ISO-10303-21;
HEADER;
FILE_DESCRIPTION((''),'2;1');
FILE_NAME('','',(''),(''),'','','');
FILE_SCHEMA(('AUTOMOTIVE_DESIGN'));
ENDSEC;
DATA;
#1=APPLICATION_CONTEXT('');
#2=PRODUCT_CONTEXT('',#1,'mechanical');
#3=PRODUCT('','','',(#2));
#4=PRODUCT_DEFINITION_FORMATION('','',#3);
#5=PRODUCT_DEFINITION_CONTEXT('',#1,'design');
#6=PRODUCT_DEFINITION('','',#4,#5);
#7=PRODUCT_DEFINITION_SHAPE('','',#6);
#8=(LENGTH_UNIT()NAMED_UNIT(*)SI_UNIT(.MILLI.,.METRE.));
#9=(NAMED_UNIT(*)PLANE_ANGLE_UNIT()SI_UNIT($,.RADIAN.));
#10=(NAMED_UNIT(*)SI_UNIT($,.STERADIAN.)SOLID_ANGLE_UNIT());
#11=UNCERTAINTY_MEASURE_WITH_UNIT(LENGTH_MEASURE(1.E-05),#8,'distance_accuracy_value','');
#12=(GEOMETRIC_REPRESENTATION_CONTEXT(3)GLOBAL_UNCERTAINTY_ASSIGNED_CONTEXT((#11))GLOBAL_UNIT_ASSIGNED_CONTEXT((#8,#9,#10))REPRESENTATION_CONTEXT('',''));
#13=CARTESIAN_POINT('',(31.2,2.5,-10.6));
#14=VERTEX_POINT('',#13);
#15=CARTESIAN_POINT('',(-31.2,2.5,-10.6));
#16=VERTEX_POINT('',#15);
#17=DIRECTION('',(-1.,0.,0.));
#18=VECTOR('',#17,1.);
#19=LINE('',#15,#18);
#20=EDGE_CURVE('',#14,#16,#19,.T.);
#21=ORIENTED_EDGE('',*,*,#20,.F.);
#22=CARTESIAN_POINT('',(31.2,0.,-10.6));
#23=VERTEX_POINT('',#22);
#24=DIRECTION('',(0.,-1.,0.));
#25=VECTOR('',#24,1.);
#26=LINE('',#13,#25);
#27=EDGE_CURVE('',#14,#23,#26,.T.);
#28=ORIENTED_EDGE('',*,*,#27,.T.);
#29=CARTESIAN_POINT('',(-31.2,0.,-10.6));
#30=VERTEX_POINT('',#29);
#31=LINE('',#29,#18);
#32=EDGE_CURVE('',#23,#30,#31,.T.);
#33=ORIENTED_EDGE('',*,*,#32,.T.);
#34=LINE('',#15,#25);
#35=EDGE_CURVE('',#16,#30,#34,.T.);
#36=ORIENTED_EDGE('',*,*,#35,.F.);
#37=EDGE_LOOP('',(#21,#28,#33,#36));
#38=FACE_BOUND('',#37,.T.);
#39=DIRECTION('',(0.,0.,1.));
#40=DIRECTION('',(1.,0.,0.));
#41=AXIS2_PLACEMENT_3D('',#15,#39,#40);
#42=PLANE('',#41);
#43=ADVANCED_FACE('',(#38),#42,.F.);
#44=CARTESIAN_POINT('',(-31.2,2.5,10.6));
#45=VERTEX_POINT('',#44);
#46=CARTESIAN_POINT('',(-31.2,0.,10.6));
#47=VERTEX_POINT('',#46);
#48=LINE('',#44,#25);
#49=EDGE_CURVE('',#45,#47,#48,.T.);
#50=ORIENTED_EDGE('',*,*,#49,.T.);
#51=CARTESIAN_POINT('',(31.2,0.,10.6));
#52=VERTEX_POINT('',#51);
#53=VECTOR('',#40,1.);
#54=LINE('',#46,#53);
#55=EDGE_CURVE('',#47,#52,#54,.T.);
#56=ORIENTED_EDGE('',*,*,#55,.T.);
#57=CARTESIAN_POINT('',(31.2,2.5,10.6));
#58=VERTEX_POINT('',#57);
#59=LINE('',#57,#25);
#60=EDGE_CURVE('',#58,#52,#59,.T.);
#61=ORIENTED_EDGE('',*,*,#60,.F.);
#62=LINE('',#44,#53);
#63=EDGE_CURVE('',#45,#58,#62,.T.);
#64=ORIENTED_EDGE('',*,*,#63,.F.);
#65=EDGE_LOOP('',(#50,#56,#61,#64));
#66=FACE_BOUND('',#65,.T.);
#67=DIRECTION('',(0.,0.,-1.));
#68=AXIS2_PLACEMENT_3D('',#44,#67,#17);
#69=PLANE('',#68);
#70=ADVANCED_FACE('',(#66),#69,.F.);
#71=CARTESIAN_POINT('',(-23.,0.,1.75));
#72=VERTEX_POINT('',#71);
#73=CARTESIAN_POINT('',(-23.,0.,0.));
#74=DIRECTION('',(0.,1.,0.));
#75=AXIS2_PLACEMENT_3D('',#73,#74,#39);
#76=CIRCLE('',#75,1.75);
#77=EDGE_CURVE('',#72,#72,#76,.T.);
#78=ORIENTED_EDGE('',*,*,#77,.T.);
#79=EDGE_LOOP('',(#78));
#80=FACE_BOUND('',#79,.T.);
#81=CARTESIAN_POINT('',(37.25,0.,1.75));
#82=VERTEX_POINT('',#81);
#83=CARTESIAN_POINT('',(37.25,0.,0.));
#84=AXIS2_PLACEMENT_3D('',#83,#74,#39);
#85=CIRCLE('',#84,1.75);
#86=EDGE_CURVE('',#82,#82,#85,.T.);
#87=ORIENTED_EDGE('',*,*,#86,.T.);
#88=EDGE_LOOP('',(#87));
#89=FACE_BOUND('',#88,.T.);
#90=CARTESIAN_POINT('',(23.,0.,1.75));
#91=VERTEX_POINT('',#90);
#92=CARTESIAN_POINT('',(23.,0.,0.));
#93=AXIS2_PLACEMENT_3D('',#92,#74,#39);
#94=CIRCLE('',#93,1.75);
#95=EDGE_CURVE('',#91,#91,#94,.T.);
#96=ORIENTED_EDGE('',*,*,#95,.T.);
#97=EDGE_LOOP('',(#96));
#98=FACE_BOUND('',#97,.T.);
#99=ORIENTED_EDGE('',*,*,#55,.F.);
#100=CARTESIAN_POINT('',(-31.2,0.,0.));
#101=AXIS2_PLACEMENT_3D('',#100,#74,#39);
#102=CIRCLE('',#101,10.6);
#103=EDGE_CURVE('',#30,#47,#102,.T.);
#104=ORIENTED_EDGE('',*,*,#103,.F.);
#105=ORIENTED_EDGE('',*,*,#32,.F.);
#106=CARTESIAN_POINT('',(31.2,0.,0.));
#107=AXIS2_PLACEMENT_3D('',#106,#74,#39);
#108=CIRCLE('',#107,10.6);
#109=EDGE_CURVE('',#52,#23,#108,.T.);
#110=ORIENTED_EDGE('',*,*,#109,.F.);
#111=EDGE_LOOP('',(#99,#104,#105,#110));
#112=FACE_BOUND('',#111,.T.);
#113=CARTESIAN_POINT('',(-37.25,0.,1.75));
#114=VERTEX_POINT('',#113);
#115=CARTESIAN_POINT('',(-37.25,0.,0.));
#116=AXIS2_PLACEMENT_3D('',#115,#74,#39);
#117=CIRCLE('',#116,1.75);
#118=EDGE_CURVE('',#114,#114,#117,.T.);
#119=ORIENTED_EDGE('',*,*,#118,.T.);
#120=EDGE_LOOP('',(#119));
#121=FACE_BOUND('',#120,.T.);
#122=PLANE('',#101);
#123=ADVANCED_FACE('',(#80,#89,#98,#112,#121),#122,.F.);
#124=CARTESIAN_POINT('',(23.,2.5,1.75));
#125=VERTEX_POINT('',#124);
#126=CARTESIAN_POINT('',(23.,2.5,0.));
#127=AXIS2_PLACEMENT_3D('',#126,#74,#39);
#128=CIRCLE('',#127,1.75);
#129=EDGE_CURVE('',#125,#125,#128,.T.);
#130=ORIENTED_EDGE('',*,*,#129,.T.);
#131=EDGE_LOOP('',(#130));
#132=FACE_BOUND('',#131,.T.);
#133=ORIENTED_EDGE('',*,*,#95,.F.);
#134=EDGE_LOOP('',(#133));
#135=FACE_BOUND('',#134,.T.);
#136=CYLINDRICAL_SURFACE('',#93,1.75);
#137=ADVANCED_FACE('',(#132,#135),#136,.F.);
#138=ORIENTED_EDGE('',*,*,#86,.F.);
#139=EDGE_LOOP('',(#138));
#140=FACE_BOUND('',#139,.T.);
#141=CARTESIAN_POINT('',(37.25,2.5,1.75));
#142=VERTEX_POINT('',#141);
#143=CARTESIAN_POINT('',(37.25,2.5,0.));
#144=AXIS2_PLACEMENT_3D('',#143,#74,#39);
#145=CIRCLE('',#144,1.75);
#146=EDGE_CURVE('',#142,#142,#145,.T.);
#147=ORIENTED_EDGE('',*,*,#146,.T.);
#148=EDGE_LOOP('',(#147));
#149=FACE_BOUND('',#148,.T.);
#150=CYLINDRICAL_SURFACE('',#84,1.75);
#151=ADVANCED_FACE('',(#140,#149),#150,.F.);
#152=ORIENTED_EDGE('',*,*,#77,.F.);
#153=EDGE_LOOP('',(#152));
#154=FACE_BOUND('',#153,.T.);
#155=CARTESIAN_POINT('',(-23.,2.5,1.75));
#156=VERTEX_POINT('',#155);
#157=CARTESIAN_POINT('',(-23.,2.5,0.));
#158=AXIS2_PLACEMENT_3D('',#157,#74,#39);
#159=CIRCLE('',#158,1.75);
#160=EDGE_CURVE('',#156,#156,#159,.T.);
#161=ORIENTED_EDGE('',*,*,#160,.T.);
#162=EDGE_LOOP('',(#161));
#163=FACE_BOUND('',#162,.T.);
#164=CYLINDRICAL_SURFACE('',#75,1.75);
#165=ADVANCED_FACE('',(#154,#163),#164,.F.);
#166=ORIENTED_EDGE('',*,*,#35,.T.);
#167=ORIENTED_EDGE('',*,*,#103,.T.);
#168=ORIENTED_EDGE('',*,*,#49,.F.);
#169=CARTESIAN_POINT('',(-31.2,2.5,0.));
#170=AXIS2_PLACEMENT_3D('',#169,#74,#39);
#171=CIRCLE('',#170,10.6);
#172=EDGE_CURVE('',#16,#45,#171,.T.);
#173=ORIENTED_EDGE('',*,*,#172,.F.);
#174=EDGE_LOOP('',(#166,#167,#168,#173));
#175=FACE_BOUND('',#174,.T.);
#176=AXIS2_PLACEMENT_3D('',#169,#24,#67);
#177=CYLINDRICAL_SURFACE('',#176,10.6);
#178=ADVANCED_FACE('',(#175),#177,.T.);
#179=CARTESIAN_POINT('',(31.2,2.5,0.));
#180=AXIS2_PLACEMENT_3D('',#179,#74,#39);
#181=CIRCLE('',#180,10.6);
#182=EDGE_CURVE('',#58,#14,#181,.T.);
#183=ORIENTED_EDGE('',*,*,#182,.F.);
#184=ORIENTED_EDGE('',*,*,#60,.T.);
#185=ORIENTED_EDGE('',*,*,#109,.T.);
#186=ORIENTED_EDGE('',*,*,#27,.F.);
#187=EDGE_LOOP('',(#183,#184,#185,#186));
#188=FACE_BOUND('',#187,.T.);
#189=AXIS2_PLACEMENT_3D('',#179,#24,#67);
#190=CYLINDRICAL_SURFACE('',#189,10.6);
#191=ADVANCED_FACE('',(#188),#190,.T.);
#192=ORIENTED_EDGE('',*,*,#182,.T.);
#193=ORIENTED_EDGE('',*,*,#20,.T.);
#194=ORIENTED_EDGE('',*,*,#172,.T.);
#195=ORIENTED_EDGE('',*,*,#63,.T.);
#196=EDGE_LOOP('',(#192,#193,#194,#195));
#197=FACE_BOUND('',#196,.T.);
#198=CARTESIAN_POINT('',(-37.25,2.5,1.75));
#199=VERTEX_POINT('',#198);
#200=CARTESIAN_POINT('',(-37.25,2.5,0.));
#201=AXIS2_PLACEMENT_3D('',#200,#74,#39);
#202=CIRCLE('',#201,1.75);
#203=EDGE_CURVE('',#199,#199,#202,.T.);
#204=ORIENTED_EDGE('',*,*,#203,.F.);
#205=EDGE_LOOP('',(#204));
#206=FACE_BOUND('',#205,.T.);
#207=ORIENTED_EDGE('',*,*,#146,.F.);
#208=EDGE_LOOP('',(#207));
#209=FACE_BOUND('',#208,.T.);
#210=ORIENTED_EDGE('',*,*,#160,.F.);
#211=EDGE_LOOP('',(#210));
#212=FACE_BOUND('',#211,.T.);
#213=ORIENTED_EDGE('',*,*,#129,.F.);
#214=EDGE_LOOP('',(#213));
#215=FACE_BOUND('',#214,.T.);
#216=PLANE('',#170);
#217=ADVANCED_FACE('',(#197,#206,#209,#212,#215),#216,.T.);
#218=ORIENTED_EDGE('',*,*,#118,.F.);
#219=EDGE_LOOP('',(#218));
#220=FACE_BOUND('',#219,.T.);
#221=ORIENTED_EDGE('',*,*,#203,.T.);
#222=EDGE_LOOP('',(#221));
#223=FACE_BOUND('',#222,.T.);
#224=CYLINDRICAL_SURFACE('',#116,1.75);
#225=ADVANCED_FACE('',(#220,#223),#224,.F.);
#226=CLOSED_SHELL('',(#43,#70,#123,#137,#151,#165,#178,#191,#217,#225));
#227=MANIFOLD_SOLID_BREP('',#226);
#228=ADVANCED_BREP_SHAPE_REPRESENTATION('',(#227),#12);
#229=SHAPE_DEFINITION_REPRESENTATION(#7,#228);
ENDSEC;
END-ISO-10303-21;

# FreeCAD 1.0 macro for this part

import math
import FreeCAD as App
import Part
import Sketcher

V = App.Vector
Q = App.Units.Quantity

doc = App.newDocument("Part")
body = doc.addObject("PartDesign::Body", "Body")

sketch1 = body.newObject("Sketcher::SketchObject", "Sketch")
sketch1.AttachmentSupport = (doc.getObject("XZ_Plane"), [""])
sketch1.MapMode = "FlatFace"
sketch1.addGeometry(Part.LineSegment(V(31, -11, 0), V(-31, -11, 0)), False)
sketch1.addGeometry(Part.ArcOfCircle(Part.Circle(V(-31, 0, 0), V(0, 0, 1), 11), math.radians(90), math.radians(270)), False)
sketch1.addGeometry(Part.LineSegment(V(-31, 11, 0), V(31, 11, 0)), False)
sketch1.addGeometry(Part.ArcOfCircle(Part.Circle(V(31, 0, 0), V(0, 0, 1), 11), math.radians(-90), math.radians(90)), False)
sketch1.addConstraint(Sketcher.Constraint("Tangent", 0, 2, 1, 2))
sketch1.addConstraint(Sketcher.Constraint("Tangent", 1, 1, 2, 1))
sketch1.addConstraint(Sketcher.Constraint("Tangent", 2, 2, 3, 2))
sketch1.addConstraint(Sketcher.Constraint("Tangent", 3, 1, 0, 1))
sketch1.addConstraint(Sketcher.Constraint("Horizontal", 0))
sketch1.addConstraint(Sketcher.Constraint("Horizontal", 2))
sketch1.addConstraint(Sketcher.Constraint("Symmetric", 1, 3, 3, 3, -1, 1))
sketch1.addConstraint(Sketcher.Constraint("Radius", 1, Q("10.6 mm")))
sketch1.addConstraint(Sketcher.Constraint("DistanceX", 0, 2, 0, 1, Q("62.4 mm")))
pad1 = body.newObject("PartDesign::Pad", "Pad")
pad1.Profile = sketch1
pad1.Length = 2.5
pad1.Reversed = True

sketch2 = body.newObject("Sketcher::SketchObject", "Sketch001")
sketch2.AttachmentSupport = (doc.getObject("XZ_Plane"), [""])
sketch2.MapMode = "FlatFace"
sketch2.AttachmentOffset = App.Placement(V(0, 0, -2.5), App.Rotation())
sketch2.addGeometry(Part.Circle(V(-37.2, 0, 0), V(0, 0, 1), 1.8), False)
sketch2.addGeometry(Part.Circle(V(-23, 0, 0), V(0, 0, 1), 1.8), False)
sketch2.addGeometry(Part.Circle(V(23, 0, 0), V(0, 0, 1), 1.8), False)
sketch2.addGeometry(Part.Circle(V(37.2, 0, 0), V(0, 0, 1), 1.8), False)
sketch2.addConstraint(Sketcher.Constraint("Equal", 0, 1))
sketch2.addConstraint(Sketcher.Constraint("Equal", 1, 2))
sketch2.addConstraint(Sketcher.Constraint("Equal", 2, 3))
sketch2.addConstraint(Sketcher.Constraint("Symmetric", 1, 3, 2, 3, -1, 1))
sketch2.addConstraint(Sketcher.Constraint("Symmetric", 0, 3, 3, 3, -1, 1))
sketch2.addConstraint(Sketcher.Constraint("PointOnObject", 0, 3, -1))
sketch2.addConstraint(Sketcher.Constraint("PointOnObject", 1, 3, -1))
sketch2.addConstraint(Sketcher.Constraint("Diameter", 0, Q("3.5 mm")))
sketch2.addConstraint(Sketcher.Constraint("DistanceX", 1, 3, -1, 1, Q("23 mm")))
sketch2.addConstraint(Sketcher.Constraint("DistanceX", 0, 3, 3, 3, Q("74.5 mm")))
pocket1 = body.newObject("PartDesign::Pocket", "Pocket")
pocket1.Profile = sketch2
pocket1.Type = "ThroughAll"
pocket1.Reversed = True

doc.recompute()
